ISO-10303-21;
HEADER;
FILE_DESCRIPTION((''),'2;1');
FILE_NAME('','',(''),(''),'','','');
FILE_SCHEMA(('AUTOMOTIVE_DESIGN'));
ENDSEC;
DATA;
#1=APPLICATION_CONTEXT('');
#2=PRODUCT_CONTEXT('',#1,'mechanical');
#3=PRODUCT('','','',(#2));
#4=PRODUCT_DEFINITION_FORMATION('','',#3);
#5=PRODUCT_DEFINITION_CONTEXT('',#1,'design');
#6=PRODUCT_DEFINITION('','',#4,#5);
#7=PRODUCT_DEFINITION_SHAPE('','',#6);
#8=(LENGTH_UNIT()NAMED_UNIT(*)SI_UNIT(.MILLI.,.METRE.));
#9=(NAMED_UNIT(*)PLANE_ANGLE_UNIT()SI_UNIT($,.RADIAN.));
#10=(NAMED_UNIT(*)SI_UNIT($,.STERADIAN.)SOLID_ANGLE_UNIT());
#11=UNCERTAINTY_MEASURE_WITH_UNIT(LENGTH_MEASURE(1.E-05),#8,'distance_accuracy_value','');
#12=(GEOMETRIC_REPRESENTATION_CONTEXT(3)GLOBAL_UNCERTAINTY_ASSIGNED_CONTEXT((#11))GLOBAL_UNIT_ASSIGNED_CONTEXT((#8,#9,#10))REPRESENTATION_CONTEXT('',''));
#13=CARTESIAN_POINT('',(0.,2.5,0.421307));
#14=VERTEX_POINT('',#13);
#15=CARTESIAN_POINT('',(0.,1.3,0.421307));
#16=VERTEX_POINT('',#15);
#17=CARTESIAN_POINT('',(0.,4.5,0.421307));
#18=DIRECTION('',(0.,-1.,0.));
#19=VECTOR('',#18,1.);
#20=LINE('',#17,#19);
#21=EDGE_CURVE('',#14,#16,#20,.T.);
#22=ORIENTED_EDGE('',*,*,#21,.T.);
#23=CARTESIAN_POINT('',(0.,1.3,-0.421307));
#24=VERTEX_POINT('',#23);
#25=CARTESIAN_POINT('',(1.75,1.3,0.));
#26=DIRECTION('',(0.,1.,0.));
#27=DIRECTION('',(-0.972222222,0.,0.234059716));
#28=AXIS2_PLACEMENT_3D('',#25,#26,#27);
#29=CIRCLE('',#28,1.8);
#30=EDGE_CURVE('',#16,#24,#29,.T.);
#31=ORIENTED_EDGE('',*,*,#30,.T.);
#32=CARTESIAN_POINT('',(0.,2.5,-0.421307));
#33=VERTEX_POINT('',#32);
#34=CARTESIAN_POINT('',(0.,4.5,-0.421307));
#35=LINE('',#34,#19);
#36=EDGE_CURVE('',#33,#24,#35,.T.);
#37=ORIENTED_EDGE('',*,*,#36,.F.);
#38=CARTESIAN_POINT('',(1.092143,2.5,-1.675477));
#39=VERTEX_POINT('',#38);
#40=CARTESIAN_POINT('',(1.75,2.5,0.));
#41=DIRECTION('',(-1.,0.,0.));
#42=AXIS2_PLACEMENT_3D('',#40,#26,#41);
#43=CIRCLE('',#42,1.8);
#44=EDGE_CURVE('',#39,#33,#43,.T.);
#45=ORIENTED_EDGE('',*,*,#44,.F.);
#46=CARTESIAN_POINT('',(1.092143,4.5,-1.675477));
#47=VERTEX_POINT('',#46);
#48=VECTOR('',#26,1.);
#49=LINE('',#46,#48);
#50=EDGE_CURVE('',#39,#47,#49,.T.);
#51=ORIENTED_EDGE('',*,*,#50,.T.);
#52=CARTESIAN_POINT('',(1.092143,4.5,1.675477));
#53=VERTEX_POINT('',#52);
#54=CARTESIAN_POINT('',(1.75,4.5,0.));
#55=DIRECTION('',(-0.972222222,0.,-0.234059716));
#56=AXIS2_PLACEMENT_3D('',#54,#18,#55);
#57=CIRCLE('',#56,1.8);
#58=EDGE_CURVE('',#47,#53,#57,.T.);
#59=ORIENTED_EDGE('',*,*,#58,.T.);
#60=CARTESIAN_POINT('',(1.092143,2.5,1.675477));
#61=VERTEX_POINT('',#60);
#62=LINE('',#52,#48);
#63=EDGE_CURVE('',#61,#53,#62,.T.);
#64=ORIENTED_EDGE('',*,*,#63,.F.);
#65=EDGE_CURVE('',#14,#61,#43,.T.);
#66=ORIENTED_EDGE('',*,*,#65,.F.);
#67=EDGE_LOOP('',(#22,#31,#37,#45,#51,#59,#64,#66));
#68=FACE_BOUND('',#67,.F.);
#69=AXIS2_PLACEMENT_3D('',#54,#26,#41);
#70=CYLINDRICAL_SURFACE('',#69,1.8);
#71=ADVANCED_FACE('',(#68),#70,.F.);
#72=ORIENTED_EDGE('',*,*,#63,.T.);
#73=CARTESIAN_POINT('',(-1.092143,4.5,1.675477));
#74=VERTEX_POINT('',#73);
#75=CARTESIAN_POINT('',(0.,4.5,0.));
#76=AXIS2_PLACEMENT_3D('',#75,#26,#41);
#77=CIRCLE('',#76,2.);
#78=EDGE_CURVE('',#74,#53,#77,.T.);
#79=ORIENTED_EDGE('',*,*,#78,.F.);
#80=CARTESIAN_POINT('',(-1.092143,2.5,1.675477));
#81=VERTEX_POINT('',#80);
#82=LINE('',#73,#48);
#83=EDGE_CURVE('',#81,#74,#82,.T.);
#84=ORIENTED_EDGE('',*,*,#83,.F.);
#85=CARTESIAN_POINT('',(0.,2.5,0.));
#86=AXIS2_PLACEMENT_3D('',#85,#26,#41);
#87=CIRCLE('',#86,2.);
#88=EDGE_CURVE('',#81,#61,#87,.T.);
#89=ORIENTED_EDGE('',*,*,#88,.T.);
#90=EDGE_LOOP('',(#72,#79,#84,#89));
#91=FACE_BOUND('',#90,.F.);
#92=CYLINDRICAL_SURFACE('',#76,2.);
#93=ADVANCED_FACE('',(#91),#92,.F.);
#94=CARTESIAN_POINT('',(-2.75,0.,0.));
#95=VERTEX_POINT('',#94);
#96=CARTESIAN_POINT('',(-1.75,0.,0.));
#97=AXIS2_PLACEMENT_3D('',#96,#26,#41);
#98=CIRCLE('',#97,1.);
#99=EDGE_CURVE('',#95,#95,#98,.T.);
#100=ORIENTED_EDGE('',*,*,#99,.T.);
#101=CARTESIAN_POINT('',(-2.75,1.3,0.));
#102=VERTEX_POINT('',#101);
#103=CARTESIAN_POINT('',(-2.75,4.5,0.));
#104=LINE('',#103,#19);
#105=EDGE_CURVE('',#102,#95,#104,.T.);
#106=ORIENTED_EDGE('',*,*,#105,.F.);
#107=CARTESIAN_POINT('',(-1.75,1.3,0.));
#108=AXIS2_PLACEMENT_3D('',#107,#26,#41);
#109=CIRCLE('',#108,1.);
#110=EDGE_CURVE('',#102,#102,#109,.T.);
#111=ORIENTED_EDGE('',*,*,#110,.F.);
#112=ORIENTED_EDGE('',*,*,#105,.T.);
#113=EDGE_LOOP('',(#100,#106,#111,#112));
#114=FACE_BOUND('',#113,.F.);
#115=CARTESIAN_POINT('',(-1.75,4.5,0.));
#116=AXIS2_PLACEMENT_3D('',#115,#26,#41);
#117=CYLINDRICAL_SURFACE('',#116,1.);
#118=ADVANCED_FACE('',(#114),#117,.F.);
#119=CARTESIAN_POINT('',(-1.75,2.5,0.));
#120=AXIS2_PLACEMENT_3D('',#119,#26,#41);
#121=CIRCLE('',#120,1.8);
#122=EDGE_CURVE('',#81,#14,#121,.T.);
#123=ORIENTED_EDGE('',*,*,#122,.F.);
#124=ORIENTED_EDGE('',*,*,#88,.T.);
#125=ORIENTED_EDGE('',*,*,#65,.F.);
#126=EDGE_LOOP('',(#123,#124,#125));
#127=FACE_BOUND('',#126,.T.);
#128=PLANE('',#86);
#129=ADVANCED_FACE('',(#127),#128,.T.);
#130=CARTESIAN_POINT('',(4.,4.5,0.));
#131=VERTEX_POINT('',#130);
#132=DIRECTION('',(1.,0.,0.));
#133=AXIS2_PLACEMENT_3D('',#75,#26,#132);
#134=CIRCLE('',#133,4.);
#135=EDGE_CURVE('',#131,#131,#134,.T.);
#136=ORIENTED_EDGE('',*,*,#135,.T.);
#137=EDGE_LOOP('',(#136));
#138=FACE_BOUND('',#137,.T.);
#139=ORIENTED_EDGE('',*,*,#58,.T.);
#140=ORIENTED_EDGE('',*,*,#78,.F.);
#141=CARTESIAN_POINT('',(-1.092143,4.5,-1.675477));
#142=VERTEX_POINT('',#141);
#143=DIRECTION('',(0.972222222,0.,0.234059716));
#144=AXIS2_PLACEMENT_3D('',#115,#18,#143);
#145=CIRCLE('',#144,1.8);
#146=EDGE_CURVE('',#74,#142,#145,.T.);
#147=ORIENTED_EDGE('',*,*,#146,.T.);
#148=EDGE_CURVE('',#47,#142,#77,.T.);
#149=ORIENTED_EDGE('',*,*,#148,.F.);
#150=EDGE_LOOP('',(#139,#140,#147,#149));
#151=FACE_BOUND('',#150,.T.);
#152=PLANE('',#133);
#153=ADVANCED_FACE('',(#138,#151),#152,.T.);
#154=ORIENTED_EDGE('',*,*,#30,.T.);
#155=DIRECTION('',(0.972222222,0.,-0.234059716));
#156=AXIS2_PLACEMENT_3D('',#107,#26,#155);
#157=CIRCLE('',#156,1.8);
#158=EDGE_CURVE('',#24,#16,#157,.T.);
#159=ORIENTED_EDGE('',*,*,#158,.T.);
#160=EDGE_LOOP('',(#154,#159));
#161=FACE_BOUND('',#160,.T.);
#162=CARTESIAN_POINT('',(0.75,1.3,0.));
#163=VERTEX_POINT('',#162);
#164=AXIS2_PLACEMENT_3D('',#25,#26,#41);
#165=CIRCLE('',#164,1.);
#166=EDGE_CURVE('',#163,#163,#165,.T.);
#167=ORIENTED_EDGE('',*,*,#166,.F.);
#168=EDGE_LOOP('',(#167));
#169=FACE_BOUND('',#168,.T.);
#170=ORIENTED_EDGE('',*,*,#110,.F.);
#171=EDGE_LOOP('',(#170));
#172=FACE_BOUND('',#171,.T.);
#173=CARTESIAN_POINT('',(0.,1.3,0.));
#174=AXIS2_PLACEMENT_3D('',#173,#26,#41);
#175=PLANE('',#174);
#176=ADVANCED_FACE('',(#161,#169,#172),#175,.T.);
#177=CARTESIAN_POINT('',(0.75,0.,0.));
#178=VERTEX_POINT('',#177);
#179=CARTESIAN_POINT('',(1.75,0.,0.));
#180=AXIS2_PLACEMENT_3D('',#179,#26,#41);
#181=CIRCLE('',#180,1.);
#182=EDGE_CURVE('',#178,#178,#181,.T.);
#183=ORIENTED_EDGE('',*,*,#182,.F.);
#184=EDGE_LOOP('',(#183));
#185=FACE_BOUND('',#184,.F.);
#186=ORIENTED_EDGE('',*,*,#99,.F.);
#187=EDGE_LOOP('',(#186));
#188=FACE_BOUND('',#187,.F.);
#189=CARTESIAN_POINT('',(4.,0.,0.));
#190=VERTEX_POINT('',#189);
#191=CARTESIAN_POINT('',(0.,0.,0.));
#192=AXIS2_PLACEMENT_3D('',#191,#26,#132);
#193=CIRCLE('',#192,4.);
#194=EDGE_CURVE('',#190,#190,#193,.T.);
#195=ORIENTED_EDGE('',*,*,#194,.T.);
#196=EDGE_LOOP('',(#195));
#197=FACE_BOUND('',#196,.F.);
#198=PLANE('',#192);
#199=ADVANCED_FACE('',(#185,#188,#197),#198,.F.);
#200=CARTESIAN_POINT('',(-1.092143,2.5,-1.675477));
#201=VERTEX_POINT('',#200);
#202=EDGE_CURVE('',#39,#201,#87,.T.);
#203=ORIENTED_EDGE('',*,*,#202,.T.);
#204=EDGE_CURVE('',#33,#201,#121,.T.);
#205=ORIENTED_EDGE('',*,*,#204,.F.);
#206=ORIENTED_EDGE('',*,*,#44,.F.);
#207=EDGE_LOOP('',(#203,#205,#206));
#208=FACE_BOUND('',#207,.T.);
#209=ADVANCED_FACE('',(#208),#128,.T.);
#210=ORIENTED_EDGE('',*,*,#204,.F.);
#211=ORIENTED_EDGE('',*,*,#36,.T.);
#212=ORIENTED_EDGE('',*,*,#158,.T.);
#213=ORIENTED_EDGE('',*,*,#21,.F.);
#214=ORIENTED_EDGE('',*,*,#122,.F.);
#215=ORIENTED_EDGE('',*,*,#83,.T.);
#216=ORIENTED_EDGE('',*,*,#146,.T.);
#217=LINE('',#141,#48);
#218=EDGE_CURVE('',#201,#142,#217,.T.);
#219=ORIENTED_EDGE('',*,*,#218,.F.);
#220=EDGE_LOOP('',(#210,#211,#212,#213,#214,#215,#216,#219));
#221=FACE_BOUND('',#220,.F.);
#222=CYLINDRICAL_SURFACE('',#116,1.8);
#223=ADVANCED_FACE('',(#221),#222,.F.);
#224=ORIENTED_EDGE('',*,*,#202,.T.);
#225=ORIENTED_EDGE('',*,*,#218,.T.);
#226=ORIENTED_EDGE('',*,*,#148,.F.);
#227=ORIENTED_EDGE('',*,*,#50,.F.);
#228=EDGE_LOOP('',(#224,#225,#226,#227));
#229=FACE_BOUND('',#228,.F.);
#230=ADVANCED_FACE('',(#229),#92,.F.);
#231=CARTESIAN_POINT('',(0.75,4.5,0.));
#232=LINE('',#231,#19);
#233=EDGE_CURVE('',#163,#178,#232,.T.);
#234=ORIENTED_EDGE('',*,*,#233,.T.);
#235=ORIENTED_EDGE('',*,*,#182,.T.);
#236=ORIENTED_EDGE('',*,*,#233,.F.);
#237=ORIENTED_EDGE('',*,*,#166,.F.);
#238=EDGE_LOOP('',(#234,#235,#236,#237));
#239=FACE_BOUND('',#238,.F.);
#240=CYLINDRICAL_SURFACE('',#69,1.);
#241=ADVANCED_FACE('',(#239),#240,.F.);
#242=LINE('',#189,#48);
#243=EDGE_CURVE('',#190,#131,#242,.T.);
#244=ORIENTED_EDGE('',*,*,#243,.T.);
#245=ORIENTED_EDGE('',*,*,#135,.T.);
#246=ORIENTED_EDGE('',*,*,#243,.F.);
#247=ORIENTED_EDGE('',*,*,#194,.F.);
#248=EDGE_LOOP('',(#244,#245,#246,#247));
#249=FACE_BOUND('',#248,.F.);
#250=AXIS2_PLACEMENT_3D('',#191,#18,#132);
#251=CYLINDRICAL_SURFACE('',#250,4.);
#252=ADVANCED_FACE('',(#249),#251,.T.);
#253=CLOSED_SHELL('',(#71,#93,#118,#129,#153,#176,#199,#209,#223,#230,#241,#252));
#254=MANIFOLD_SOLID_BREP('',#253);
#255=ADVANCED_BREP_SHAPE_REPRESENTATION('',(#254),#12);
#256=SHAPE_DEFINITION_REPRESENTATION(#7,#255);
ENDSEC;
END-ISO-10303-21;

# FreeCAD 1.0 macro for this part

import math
import FreeCAD as App
import Part
import Sketcher
from FreeCAD import Vector
Q = App.Units.Quantity

doc = App.newDocument("Part")
body = doc.addObject("PartDesign::Body", "Body")

# Sketch on XZ plane
sketch1 = body.newObject("Sketcher::SketchObject", "Sketch")
sketch1.AttachmentSupport = (doc.getObject("XZ_Plane"), [""])
sketch1.MapMode = "FlatFace"
sketch1.addGeometry(Part.Circle(Vector(0, 0, 0), Vector(0, 0, 1), 4), False)
sketch1.addConstraint([
    Sketcher.Constraint("Coincident", 0, 3, -1, 1),
    Sketcher.Constraint("Diameter", 0, Q("8 mm")),
])
pad1 = body.newObject("PartDesign::Pad", "Pad")
pad1.Profile = sketch1
pad1.Length = 4.5
pad1.Reversed = True

# Sketch on XZ plane
sketch2 = body.newObject("Sketcher::SketchObject", "Sketch001")
sketch2.AttachmentSupport = (doc.getObject("XZ_Plane"), [""])
sketch2.MapMode = "FlatFace"
sketch2.AttachmentOffset = App.Placement(Vector(0, 0, -4.5), App.Rotation())
sketch2.addGeometry(Part.Circle(Vector(0, 0, 0), Vector(0, 0, 1), 2), False)
sketch2.addConstraint([
    Sketcher.Constraint("Coincident", 0, 3, -1, 1),
    Sketcher.Constraint("Diameter", 0, Q("4 mm")),
])
pocket1 = body.newObject("PartDesign::Pocket", "Pocket")
pocket1.Profile = sketch2
pocket1.Length = 2
pocket1.Reversed = True

# Sketch on XZ plane
sketch3 = body.newObject("Sketcher::SketchObject", "Sketch002")
sketch3.AttachmentSupport = (doc.getObject("XZ_Plane"), [""])
sketch3.MapMode = "FlatFace"
sketch3.AttachmentOffset = App.Placement(Vector(0, 0, -4.5), App.Rotation())
sketch3.addGeometry([
    Part.ArcOfCircle(Part.Circle(Vector(-1.75, 0, 0), Vector(0, 0, 1), 1.8), math.radians(13.536203), math.radians(346.463797)),
    Part.ArcOfCircle(Part.Circle(Vector(1.75, 0, 0), Vector(0, 0, 1), 1.8), math.radians(-166.463797), math.radians(166.463797)),
], False)
sketch3.addConstraint([
    Sketcher.Constraint("Coincident", 0, 1, 1, 2),
    Sketcher.Constraint("Coincident", 1, 1, 0, 2),
    Sketcher.Constraint("Equal", 0, 1),
    Sketcher.Constraint("Symmetric", 0, 3, 1, 3, -1, 1),
    Sketcher.Constraint("PointOnObject", 0, 3, -1),
    Sketcher.Constraint("Radius", 0, Q("1.8 mm")),
    Sketcher.Constraint("DistanceX", 0, 3, 1, 3, Q("3.5 mm")),
])
pocket2 = body.newObject("PartDesign::Pocket", "Pocket001")
pocket2.Profile = sketch3
pocket2.Length = 3.2
pocket2.Reversed = True

# Sketch on XZ plane
sketch4 = body.newObject("Sketcher::SketchObject", "Sketch003")
sketch4.AttachmentSupport = (doc.getObject("XZ_Plane"), [""])
sketch4.MapMode = "FlatFace"
sketch4.AttachmentOffset = App.Placement(Vector(0, 0, -4.5), App.Rotation())
sketch4.addGeometry([
    Part.Circle(Vector(-1.75, 0, 0), Vector(0, 0, 1), 1),
    Part.Circle(Vector(1.75, 0, 0), Vector(0, 0, 1), 1),
], False)
sketch4.addConstraint([
    Sketcher.Constraint("Equal", 0, 1),
    Sketcher.Constraint("Symmetric", 0, 3, 1, 3, -1, 1),
    Sketcher.Constraint("PointOnObject", 0, 3, -1),
    Sketcher.Constraint("Diameter", 0, Q("2 mm")),
    Sketcher.Constraint("DistanceX", 0, 3, 1, 3, Q("3.5 mm")),
])
pocket3 = body.newObject("PartDesign::Pocket", "Pocket002")
pocket3.Profile = sketch4
pocket3.Length = 6.5
pocket3.Reversed = True

doc.recompute()
